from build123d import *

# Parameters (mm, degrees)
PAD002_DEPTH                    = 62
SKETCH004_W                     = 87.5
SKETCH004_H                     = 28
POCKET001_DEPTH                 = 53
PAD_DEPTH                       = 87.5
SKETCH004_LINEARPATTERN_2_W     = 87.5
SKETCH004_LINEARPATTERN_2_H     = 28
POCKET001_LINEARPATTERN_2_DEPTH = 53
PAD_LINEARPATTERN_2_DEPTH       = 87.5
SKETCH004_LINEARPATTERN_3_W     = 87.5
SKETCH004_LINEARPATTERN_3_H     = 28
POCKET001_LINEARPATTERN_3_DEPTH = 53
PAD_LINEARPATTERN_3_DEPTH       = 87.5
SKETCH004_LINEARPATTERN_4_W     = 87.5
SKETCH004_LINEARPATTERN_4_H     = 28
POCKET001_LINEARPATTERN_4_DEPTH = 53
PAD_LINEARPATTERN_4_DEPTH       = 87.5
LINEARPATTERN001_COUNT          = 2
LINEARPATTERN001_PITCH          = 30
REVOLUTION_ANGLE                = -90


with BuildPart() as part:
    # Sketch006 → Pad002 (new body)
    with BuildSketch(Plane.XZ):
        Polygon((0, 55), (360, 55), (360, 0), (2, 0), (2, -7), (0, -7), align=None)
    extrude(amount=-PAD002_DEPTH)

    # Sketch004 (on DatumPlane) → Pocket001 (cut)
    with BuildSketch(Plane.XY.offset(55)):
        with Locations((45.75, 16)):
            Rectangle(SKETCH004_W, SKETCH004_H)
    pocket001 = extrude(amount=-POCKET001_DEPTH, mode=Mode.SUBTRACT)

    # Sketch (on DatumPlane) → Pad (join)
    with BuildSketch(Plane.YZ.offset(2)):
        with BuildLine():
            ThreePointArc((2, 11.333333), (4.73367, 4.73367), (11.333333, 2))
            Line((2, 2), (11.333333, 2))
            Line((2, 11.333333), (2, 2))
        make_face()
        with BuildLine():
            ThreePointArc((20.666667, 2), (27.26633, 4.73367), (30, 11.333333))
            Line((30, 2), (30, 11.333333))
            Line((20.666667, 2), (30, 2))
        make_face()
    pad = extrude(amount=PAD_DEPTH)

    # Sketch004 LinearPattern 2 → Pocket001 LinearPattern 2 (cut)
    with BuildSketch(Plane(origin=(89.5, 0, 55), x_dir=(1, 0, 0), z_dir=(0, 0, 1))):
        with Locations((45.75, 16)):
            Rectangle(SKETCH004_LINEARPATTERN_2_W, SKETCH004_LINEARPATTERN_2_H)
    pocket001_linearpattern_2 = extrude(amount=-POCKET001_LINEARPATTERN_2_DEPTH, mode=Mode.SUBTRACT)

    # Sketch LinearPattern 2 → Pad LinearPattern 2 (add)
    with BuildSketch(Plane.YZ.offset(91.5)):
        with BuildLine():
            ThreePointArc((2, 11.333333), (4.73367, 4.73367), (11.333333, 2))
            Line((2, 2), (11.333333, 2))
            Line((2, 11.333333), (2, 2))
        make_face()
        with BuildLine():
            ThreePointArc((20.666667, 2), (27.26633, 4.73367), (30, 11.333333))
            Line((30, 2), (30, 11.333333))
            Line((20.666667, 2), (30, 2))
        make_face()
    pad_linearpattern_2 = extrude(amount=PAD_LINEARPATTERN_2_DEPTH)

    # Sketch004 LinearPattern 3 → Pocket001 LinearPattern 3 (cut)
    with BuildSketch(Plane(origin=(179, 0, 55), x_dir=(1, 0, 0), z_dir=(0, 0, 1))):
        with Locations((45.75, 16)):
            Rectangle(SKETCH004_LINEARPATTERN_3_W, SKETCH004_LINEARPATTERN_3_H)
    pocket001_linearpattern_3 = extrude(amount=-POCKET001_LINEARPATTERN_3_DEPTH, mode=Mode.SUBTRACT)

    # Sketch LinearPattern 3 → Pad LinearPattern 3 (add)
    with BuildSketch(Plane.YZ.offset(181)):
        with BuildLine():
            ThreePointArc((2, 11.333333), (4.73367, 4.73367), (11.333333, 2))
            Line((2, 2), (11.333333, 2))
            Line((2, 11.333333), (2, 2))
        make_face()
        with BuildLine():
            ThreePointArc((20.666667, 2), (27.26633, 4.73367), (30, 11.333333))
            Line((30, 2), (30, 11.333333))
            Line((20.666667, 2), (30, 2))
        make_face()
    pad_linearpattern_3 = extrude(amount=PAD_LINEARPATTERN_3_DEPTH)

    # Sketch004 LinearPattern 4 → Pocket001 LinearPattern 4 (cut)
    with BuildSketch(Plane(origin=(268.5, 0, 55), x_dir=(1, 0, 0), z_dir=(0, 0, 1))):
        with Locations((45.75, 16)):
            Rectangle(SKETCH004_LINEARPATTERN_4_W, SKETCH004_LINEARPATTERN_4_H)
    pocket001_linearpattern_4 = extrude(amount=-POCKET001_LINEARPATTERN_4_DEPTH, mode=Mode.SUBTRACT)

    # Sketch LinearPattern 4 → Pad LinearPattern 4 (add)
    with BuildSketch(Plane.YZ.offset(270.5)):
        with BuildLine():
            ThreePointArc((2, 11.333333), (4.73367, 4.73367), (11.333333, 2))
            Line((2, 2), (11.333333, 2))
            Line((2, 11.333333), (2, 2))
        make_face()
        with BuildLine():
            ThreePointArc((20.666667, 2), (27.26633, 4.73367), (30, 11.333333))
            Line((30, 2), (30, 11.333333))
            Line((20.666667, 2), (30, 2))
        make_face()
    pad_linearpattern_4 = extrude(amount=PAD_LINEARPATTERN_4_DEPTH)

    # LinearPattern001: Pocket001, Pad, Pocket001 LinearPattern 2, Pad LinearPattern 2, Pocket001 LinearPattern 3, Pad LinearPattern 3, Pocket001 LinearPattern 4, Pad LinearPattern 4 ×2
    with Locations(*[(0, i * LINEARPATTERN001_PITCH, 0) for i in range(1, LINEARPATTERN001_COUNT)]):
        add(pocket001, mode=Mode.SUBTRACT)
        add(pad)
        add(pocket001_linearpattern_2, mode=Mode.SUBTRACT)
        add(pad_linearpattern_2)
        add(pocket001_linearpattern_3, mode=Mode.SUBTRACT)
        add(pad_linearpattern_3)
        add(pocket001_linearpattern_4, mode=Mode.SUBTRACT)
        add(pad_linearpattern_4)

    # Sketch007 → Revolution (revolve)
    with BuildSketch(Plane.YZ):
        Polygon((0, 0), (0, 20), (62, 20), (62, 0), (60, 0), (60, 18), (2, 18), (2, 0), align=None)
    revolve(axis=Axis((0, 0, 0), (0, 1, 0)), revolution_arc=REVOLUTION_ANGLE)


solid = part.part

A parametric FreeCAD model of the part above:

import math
import FreeCAD as App
import Part
import Sketcher
from FreeCAD import Vector

doc = App.newDocument("Part")
body = doc.addObject("PartDesign::Body", "Body")

sketch1 = doc.addObject("Sketcher::SketchObject", "Sketch")
body.addObject(sketch1)
sketch1.AttachmentSupport = (doc.XZ_Plane, [""])
sketch1.MapMode = "FlatFace"
sketch1.addGeometry([
    Part.LineSegment(Vector(360, 55, 0), Vector(0, 55, 0)),
    Part.LineSegment(Vector(0, 55, 0), Vector(0, -7, 0)),
    Part.LineSegment(Vector(0, -7, 0), Vector(2, -7, 0)),
    Part.LineSegment(Vector(2, -7, 0), Vector(2, 0, 0)),
    Part.LineSegment(Vector(2, 0, 0), Vector(360, 0, 0)),
    Part.LineSegment(Vector(360, 0, 0), Vector(360, 55, 0)),
], False)
sketch1.addConstraint([
    Sketcher.Constraint("Coincident", 0, 2, 1, 1),
    Sketcher.Constraint("Coincident", 1, 2, 2, 1),
    Sketcher.Constraint("Coincident", 2, 2, 3, 1),
    Sketcher.Constraint("Coincident", 3, 2, 4, 1),
    Sketcher.Constraint("Coincident", 4, 2, 5, 1),
    Sketcher.Constraint("Coincident", 5, 2, 0, 1),
    Sketcher.Constraint("Horizontal", 0),
    Sketcher.Constraint("Vertical", 1),
    Sketcher.Constraint("Horizontal", 2),
    Sketcher.Constraint("Vertical", 3),
    Sketcher.Constraint("Horizontal", 4),
    Sketcher.Constraint("Vertical", 5),
    Sketcher.Constraint("PointOnObject", 0, 2, -2),
    Sketcher.Constraint("PointOnObject", 3, 2, -1),
    Sketcher.Constraint("DistanceX", 0, 2, 0, 1, 360.0),
    Sketcher.Constraint("DistanceX", 2, 1, 2, 2, 2.0),
    Sketcher.Constraint("DistanceY", 1, 2, 1, 1, 62.0),
    Sketcher.Constraint("DistanceY", 3, 1, 3, 2, 7.0),
])
pad1 = doc.addObject("PartDesign::Pad", "Pad")
body.addObject(pad1)
pad1.Profile = sketch1
pad1.Length = 62
pad1.Reversed = True

sketch2 = doc.addObject("Sketcher::SketchObject", "Sketch001")
body.addObject(sketch2)
sketch2.AttachmentSupport = (doc.XY_Plane, [""])
sketch2.MapMode = "FlatFace"
sketch2.AttachmentOffset = App.Placement(Vector(0, 0, 55), App.Rotation())
sketch2.addGeometry([
    Part.LineSegment(Vector(2, 30, 0), Vector(2, 2, 0)),
    Part.LineSegment(Vector(2, 2, 0), Vector(90, 2, 0)),
    Part.LineSegment(Vector(90, 2, 0), Vector(90, 30, 0)),
    Part.LineSegment(Vector(90, 30, 0), Vector(2, 30, 0)),
], False)
sketch2.addConstraint([
    Sketcher.Constraint("Coincident", 0, 2, 1, 1),
    Sketcher.Constraint("Coincident", 1, 2, 2, 1),
    Sketcher.Constraint("Coincident", 2, 2, 3, 1),
    Sketcher.Constraint("Coincident", 3, 2, 0, 1),
    Sketcher.Constraint("Vertical", 0),
    Sketcher.Constraint("Horizontal", 1),
    Sketcher.Constraint("Vertical", 2),
    Sketcher.Constraint("Horizontal", 3),
    Sketcher.Constraint("DistanceY", 0, 2, 0, 1, 28.0),
    Sketcher.Constraint("DistanceX", 1, 1, 1, 2, 87.5),
    Sketcher.Constraint("DistanceX", -1, 1, 0, 2, 2.0),
    Sketcher.Constraint("DistanceY", -1, 1, 0, 2, 2.0),
])
pocket1 = doc.addObject("PartDesign::Pocket", "Pocket")
body.addObject(pocket1)
pocket1.Profile = sketch2
pocket1.Length = 53

sketch3 = doc.addObject("Sketcher::SketchObject", "Sketch002")
body.addObject(sketch3)
sketch3.AttachmentSupport = (doc.YZ_Plane, [""])
sketch3.MapMode = "FlatFace"
sketch3.AttachmentOffset = App.Placement(Vector(0, 0, 2), App.Rotation())
sketch3.addGeometry([
    Part.ArcOfCircle(Part.Circle(Vector(11, 11, 0), Vector(0, 0, 1), 9), math.radians(-180), math.radians(-90)),
    Part.LineSegment(Vector(2, 11, 0), Vector(2, 2, 0)),
    Part.LineSegment(Vector(2, 2, 0), Vector(11, 2, 0)),
    Part.ArcOfCircle(Part.Circle(Vector(21, 11, 0), Vector(0, 0, 1), 9), math.radians(-90), math.radians(0)),
    Part.LineSegment(Vector(21, 2, 0), Vector(30, 2, 0)),
    Part.LineSegment(Vector(30, 2, 0), Vector(30, 11, 0)),
], False)
sketch3.addConstraint([
    Sketcher.Constraint("Tangent", 0, 1, 1, 1),
    Sketcher.Constraint("Coincident", 1, 2, 2, 1),
    Sketcher.Constraint("Tangent", 2, 2, 0, 2),
    Sketcher.Constraint("Tangent", 3, 1, 4, 1),
    Sketcher.Constraint("Coincident", 4, 2, 5, 1),
    Sketcher.Constraint("Tangent", 5, 2, 3, 2),
    Sketcher.Constraint("Vertical", 1),
    Sketcher.Constraint("Horizontal", 2),
    Sketcher.Constraint("Horizontal", 4),
    Sketcher.Constraint("Vertical", 5),
    Sketcher.Constraint("Equal", 0, 3),
    Sketcher.Constraint("Horizontal", 0, 3, 3, 3),
    Sketcher.Constraint("DistanceX", -1, 1, 0, 1, 2.0),
    Sketcher.Constraint("DistanceY", -1, 1, 1, 2, 2.0),
    Sketcher.Constraint("DistanceX", -1, 1, 4, 2, 30.0),
    Sketcher.Constraint("Radius", 0, 9.333333),
])
pad2 = doc.addObject("PartDesign::Pad", "Pad001")
body.addObject(pad2)
pad2.Profile = sketch3
pad2.Length = 87.5

sketch4 = doc.addObject("Sketcher::SketchObject", "Sketch003")
body.addObject(sketch4)
sketch4.AttachmentSupport = (doc.XY_Plane, [""])
sketch4.MapMode = "FlatFace"
sketch4.AttachmentOffset = App.Placement(Vector(0, 0, 55), App.Rotation())
sketch4.addGeometry([
    Part.LineSegment(Vector(92, 30, 0), Vector(92, 2, 0)),
    Part.LineSegment(Vector(92, 2, 0), Vector(179, 2, 0)),
    Part.LineSegment(Vector(179, 2, 0), Vector(179, 30, 0)),
    Part.LineSegment(Vector(179, 30, 0), Vector(92, 30, 0)),
], False)
sketch4.addConstraint([
    Sketcher.Constraint("Coincident", 0, 2, 1, 1),
    Sketcher.Constraint("Coincident", 1, 2, 2, 1),
    Sketcher.Constraint("Coincident", 2, 2, 3, 1),
    Sketcher.Constraint("Coincident", 3, 2, 0, 1),
    Sketcher.Constraint("Vertical", 0),
    Sketcher.Constraint("Horizontal", 1),
    Sketcher.Constraint("Vertical", 2),
    Sketcher.Constraint("Horizontal", 3),
    Sketcher.Constraint("DistanceY", 0, 2, 0, 1, 28.0),
    Sketcher.Constraint("DistanceX", 1, 1, 1, 2, 87.5),
    Sketcher.Constraint("DistanceY", -1, 1, 0, 2, 2.0),
    Sketcher.Constraint("DistanceX", -1, 1, 1, 2, 179.0),
])
pocket2 = doc.addObject("PartDesign::Pocket", "Pocket001")
body.addObject(pocket2)
pocket2.Profile = sketch4
pocket2.Length = 53

sketch5 = doc.addObject("Sketcher::SketchObject", "Sketch004")
body.addObject(sketch5)
sketch5.AttachmentSupport = (doc.YZ_Plane, [""])
sketch5.MapMode = "FlatFace"
sketch5.AttachmentOffset = App.Placement(Vector(0, 0, 91.5), App.Rotation())
sketch5.addGeometry([
    Part.ArcOfCircle(Part.Circle(Vector(11, 11, 0), Vector(0, 0, 1), 9), math.radians(-180), math.radians(-90)),
    Part.LineSegment(Vector(2, 11, 0), Vector(2, 2, 0)),
    Part.LineSegment(Vector(2, 2, 0), Vector(11, 2, 0)),
    Part.ArcOfCircle(Part.Circle(Vector(21, 11, 0), Vector(0, 0, 1), 9), math.radians(-90), math.radians(0)),
    Part.LineSegment(Vector(21, 2, 0), Vector(30, 2, 0)),
    Part.LineSegment(Vector(30, 2, 0), Vector(30, 11, 0)),
], False)
sketch5.addConstraint([
    Sketcher.Constraint("Tangent", 0, 1, 1, 1),
    Sketcher.Constraint("Coincident", 1, 2, 2, 1),
    Sketcher.Constraint("Tangent", 2, 2, 0, 2),
    Sketcher.Constraint("Tangent", 3, 1, 4, 1),
    Sketcher.Constraint("Coincident", 4, 2, 5, 1),
    Sketcher.Constraint("Tangent", 5, 2, 3, 2),
    Sketcher.Constraint("Vertical", 1),
    Sketcher.Constraint("Horizontal", 2),
    Sketcher.Constraint("Horizontal", 4),
    Sketcher.Constraint("Vertical", 5),
    Sketcher.Constraint("Equal", 0, 3),
    Sketcher.Constraint("Horizontal", 0, 3, 3, 3),
    Sketcher.Constraint("DistanceX", -1, 1, 0, 1, 2.0),
    Sketcher.Constraint("DistanceY", -1, 1, 1, 2, 2.0),
    Sketcher.Constraint("DistanceX", -1, 1, 4, 2, 30.0),
    Sketcher.Constraint("Radius", 0, 9.333333),
])
pad3 = doc.addObject("PartDesign::Pad", "Pad002")
body.addObject(pad3)
pad3.Profile = sketch5
pad3.Length = 87.5

sketch6 = doc.addObject("Sketcher::SketchObject", "Sketch005")
body.addObject(sketch6)
sketch6.AttachmentSupport = (doc.XY_Plane, [""])
sketch6.MapMode = "FlatFace"
sketch6.AttachmentOffset = App.Placement(Vector(0, 0, 55), App.Rotation())
sketch6.addGeometry([
    Part.LineSegment(Vector(181, 30, 0), Vector(181, 2, 0)),
    Part.LineSegment(Vector(181, 2, 0), Vector(268, 2, 0)),
    Part.LineSegment(Vector(268, 2, 0), Vector(268, 30, 0)),
    Part.LineSegment(Vector(268, 30, 0), Vector(181, 30, 0)),
], False)
sketch6.addConstraint([
    Sketcher.Constraint("Coincident", 0, 2, 1, 1),
    Sketcher.Constraint("Coincident", 1, 2, 2, 1),
    Sketcher.Constraint("Coincident", 2, 2, 3, 1),
    Sketcher.Constraint("Coincident", 3, 2, 0, 1),
    Sketcher.Constraint("Vertical", 0),
    Sketcher.Constraint("Horizontal", 1),
    Sketcher.Constraint("Vertical", 2),
    Sketcher.Constraint("Horizontal", 3),
    Sketcher.Constraint("DistanceY", 0, 2, 0, 1, 28.0),
    Sketcher.Constraint("DistanceX", 1, 1, 1, 2, 87.5),
    Sketcher.Constraint("DistanceX", -1, 1, 0, 2, 181.0),
    Sketcher.Constraint("DistanceY", -1, 1, 0, 2, 2.0),
])
pocket3 = doc.addObject("PartDesign::Pocket", "Pocket002")
body.addObject(pocket3)
pocket3.Profile = sketch6
pocket3.Length = 53

sketch7 = doc.addObject("Sketcher::SketchObject", "Sketch006")
body.addObject(sketch7)
sketch7.AttachmentSupport = (doc.YZ_Plane, [""])
sketch7.MapMode = "FlatFace"
sketch7.AttachmentOffset = App.Placement(Vector(0, 0, 181), App.Rotation())
sketch7.addGeometry([
    Part.ArcOfCircle(Part.Circle(Vector(11, 11, 0), Vector(0, 0, 1), 9), math.radians(-180), math.radians(-90)),
    Part.LineSegment(Vector(2, 11, 0), Vector(2, 2, 0)),
    Part.LineSegment(Vector(2, 2, 0), Vector(11, 2, 0)),
    Part.ArcOfCircle(Part.Circle(Vector(21, 11, 0), Vector(0, 0, 1), 9), math.radians(-90), math.radians(0)),
    Part.LineSegment(Vector(21, 2, 0), Vector(30, 2, 0)),
    Part.LineSegment(Vector(30, 2, 0), Vector(30, 11, 0)),
], False)
sketch7.addConstraint([
    Sketcher.Constraint("Tangent", 0, 1, 1, 1),
    Sketcher.Constraint("Coincident", 1, 2, 2, 1),
    Sketcher.Constraint("Tangent", 2, 2, 0, 2),
    Sketcher.Constraint("Tangent", 3, 1, 4, 1),
    Sketcher.Constraint("Coincident", 4, 2, 5, 1),
    Sketcher.Constraint("Tangent", 5, 2, 3, 2),
    Sketcher.Constraint("Vertical", 1),
    Sketcher.Constraint("Horizontal", 2),
    Sketcher.Constraint("Horizontal", 4),
    Sketcher.Constraint("Vertical", 5),
    Sketcher.Constraint("Equal", 0, 3),
    Sketcher.Constraint("Horizontal", 0, 3, 3, 3),
    Sketcher.Constraint("DistanceX", -1, 1, 0, 1, 2.0),
    Sketcher.Constraint("DistanceY", -1, 1, 1, 2, 2.0),
    Sketcher.Constraint("DistanceX", -1, 1, 4, 2, 30.0),
    Sketcher.Constraint("Radius", 0, 9.333333),
])
pad4 = doc.addObject("PartDesign::Pad", "Pad003")
body.addObject(pad4)
pad4.Profile = sketch7
pad4.Length = 87.5

sketch8 = doc.addObject("Sketcher::SketchObject", "Sketch007")
body.addObject(sketch8)
sketch8.AttachmentSupport = (doc.XY_Plane, [""])
sketch8.MapMode = "FlatFace"
sketch8.AttachmentOffset = App.Placement(Vector(0, 0, 55), App.Rotation())
sketch8.addGeometry([
    Part.LineSegment(Vector(270, 30, 0), Vector(270, 2, 0)),
    Part.LineSegment(Vector(270, 2, 0), Vector(358, 2, 0)),
    Part.LineSegment(Vector(358, 2, 0), Vector(358, 30, 0)),
    Part.LineSegment(Vector(358, 30, 0), Vector(270, 30, 0)),
], False)
sketch8.addConstraint([
    Sketcher.Constraint("Coincident", 0, 2, 1, 1),
    Sketcher.Constraint("Coincident", 1, 2, 2, 1),
    Sketcher.Constraint("Coincident", 2, 2, 3, 1),
    Sketcher.Constraint("Coincident", 3, 2, 0, 1),
    Sketcher.Constraint("Vertical", 0),
    Sketcher.Constraint("Horizontal", 1),
    Sketcher.Constraint("Vertical", 2),
    Sketcher.Constraint("Horizontal", 3),
    Sketcher.Constraint("DistanceY", 0, 2, 0, 1, 28.0),
    Sketcher.Constraint("DistanceX", 1, 1, 1, 2, 87.5),
    Sketcher.Constraint("DistanceY", -1, 1, 0, 2, 2.0),
    Sketcher.Constraint("DistanceX", -1, 1, 1, 2, 358.0),
])
pocket4 = doc.addObject("PartDesign::Pocket", "Pocket003")
body.addObject(pocket4)
pocket4.Profile = sketch8
pocket4.Length = 53

sketch9 = doc.addObject("Sketcher::SketchObject", "Sketch008")
body.addObject(sketch9)
sketch9.AttachmentSupport = (doc.YZ_Plane, [""])
sketch9.MapMode = "FlatFace"
sketch9.AttachmentOffset = App.Placement(Vector(0, 0, 270.5), App.Rotation())
sketch9.addGeometry([
    Part.ArcOfCircle(Part.Circle(Vector(11, 11, 0), Vector(0, 0, 1), 9), math.radians(-180), math.radians(-90)),
    Part.LineSegment(Vector(2, 11, 0), Vector(2, 2, 0)),
    Part.LineSegment(Vector(2, 2, 0), Vector(11, 2, 0)),
    Part.ArcOfCircle(Part.Circle(Vector(21, 11, 0), Vector(0, 0, 1), 9), math.radians(-90), math.radians(0)),
    Part.LineSegment(Vector(21, 2, 0), Vector(30, 2, 0)),
    Part.LineSegment(Vector(30, 2, 0), Vector(30, 11, 0)),
], False)
sketch9.addConstraint([
    Sketcher.Constraint("Tangent", 0, 1, 1, 1),
    Sketcher.Constraint("Coincident", 1, 2, 2, 1),
    Sketcher.Constraint("Tangent", 2, 2, 0, 2),
    Sketcher.Constraint("Tangent", 3, 1, 4, 1),
    Sketcher.Constraint("Coincident", 4, 2, 5, 1),
    Sketcher.Constraint("Tangent", 5, 2, 3, 2),
    Sketcher.Constraint("Vertical", 1),
    Sketcher.Constraint("Horizontal", 2),
    Sketcher.Constraint("Horizontal", 4),
    Sketcher.Constraint("Vertical", 5),
    Sketcher.Constraint("Equal", 0, 3),
    Sketcher.Constraint("Horizontal", 0, 3, 3, 3),
    Sketcher.Constraint("DistanceX", -1, 1, 0, 1, 2.0),
    Sketcher.Constraint("DistanceY", -1, 1, 1, 2, 2.0),
    Sketcher.Constraint("DistanceX", -1, 1, 4, 2, 30.0),
    Sketcher.Constraint("Radius", 0, 9.333333),
])
pad5 = doc.addObject("PartDesign::Pad", "Pad004")
body.addObject(pad5)
pad5.Profile = sketch9
pad5.Length = 87.5
doc.recompute()

linearpattern = doc.addObject("PartDesign::LinearPattern", "LinearPattern")
body.addObject(linearpattern)
linearpattern.Originals = [pocket1, pad2, pocket2, pad3, pocket3, pad4, pocket4, pad5]
linearpattern.Direction = (doc.Y_Axis, [""])
linearpattern.Mode = "offset"
linearpattern.Offset = 30
linearpattern.Occurrences = 2
body.Tip = linearpattern

sketch10 = doc.addObject("Sketcher::SketchObject", "Sketch009")
body.addObject(sketch10)
sketch10.AttachmentSupport = (doc.YZ_Plane, [""])
sketch10.MapMode = "FlatFace"
sketch10.addGeometry([
    Part.LineSegment(Vector(0, 20, 0), Vector(0, 0, 0)),
    Part.LineSegment(Vector(0, 0, 0), Vector(2, 0, 0)),
    Part.LineSegment(Vector(2, 0, 0), Vector(2, 18, 0)),
    Part.LineSegment(Vector(2, 18, 0), Vector(60, 18, 0)),
    Part.LineSegment(Vector(60, 18, 0), Vector(60, 0, 0)),
    Part.LineSegment(Vector(60, 0, 0), Vector(62, 0, 0)),
    Part.LineSegment(Vector(62, 0, 0), Vector(62, 20, 0)),
    Part.LineSegment(Vector(62, 20, 0), Vector(0, 20, 0)),
], False)
sketch10.addConstraint([
    Sketcher.Constraint("Coincident", 0, 2, 1, 1),
    Sketcher.Constraint("Coincident", 1, 2, 2, 1),
    Sketcher.Constraint("Coincident", 2, 2, 3, 1),
    Sketcher.Constraint("Coincident", 3, 2, 4, 1),
    Sketcher.Constraint("Coincident", 4, 2, 5, 1),
    Sketcher.Constraint("Coincident", 5, 2, 6, 1),
    Sketcher.Constraint("Coincident", 6, 2, 7, 1),
    Sketcher.Constraint("Coincident", 7, 2, 0, 1),
    Sketcher.Constraint("Vertical", 0),
    Sketcher.Constraint("Horizontal", 1),
    Sketcher.Constraint("Vertical", 2),
    Sketcher.Constraint("Horizontal", 3),
    Sketcher.Constraint("Vertical", 4),
    Sketcher.Constraint("Horizontal", 5),
    Sketcher.Constraint("Vertical", 6),
    Sketcher.Constraint("Horizontal", 7),
    Sketcher.Constraint("Coincident", 0, 2, -1, 1),
    Sketcher.Constraint("PointOnObject", 4, 2, -1),
    Sketcher.Constraint("Equal", 1, 5),
    Sketcher.Constraint("DistanceX", 1, 1, 1, 2, 2.0),
    Sketcher.Constraint("DistanceX", 3, 1, 3, 2, 58.0),
    Sketcher.Constraint("DistanceY", 0, 2, 0, 1, 20.0),
    Sketcher.Constraint("DistanceY", 2, 1, 2, 2, 18.0),
])
revolution = doc.addObject("PartDesign::Revolution", "Revolution")
body.addObject(revolution)
revolution.Profile = sketch10
revolution.ReferenceAxis = (sketch10, ["H_Axis"])
revolution.Angle = 90
revolution.Reversed = True

doc.recompute()
